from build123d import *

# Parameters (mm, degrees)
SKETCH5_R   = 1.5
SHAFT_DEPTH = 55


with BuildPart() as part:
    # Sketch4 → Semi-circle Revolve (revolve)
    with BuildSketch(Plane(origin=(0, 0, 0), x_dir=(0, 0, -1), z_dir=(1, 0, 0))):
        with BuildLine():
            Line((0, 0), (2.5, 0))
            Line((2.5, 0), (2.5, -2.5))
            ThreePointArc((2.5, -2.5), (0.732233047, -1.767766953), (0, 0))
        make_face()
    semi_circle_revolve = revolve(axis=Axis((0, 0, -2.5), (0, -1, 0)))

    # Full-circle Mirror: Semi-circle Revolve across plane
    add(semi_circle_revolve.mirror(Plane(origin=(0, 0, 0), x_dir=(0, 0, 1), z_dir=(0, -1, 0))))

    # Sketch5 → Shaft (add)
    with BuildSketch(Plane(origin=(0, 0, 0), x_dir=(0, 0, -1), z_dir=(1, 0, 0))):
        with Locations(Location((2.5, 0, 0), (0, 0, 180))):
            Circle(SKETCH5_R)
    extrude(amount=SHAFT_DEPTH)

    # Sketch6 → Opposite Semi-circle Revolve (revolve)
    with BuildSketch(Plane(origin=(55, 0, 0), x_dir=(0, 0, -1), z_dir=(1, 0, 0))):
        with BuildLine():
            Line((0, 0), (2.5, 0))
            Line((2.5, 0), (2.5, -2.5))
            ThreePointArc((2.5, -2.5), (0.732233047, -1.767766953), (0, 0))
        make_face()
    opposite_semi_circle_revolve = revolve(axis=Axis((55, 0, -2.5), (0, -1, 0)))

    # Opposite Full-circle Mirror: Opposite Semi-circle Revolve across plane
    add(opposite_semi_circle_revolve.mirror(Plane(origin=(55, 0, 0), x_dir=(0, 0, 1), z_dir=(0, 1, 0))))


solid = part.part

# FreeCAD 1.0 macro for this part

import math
import FreeCAD as App
import Part
import Sketcher

V = App.Vector
Q = App.Units.Quantity

doc = App.newDocument("Part")
body = doc.addObject("PartDesign::Body", "Body")

# Sketch on YZ plane
sketch1 = body.newObject("Sketcher::SketchObject", "Sketch")
sketch1.AttachmentSupport = (doc.getObject("YZ_Plane"), [""])
sketch1.MapMode = "FlatFace"
sketch1.addGeometry(Part.LineSegment(V(0, -2.5, 0), V(0, 0, 0)), False)
sketch1.addGeometry(Part.ArcOfCircle(Part.Circle(V(0, -2.5, 0), V(0, 0, 1), 2.5), math.radians(90), math.radians(180)), False)
sketch1.addGeometry(Part.LineSegment(V(-2.5, -2.5, 0), V(0, -2.5, 0)), False)
sketch1.addGeometry(Part.LineSegment(V(0, -2.5, 0), V(-2.5, -2.5, 0)), True)  # axis
sketch1.addConstraint(Sketcher.Constraint("Coincident", 0, 2, 1, 1))
sketch1.addConstraint(Sketcher.Constraint("Coincident", 1, 2, 2, 1))
sketch1.addConstraint(Sketcher.Constraint("Coincident", 2, 2, 0, 1))
sketch1.addConstraint(Sketcher.Constraint("Vertical", 0))
sketch1.addConstraint(Sketcher.Constraint("Horizontal", 2))
sketch1.addConstraint(Sketcher.Constraint("Horizontal", 3))
sketch1.addConstraint(Sketcher.Constraint("Coincident", 0, 2, -1, 1))
sketch1.addConstraint(Sketcher.Constraint("Coincident", 2, 2, 1, 3))
sketch1.addConstraint(Sketcher.Constraint("Coincident", 3, 1, 1, 3))
sketch1.addConstraint(Sketcher.Constraint("Equal", 2, 3))
sketch1.addConstraint(Sketcher.Constraint("Radius", 1, Q("2.5 mm")))
revolution = body.newObject("PartDesign::Revolution", "Revolution")
revolution.Profile = sketch1
revolution.ReferenceAxis = (sketch1, ["Axis0"])
revolution.Angle = 360
doc.recompute()

mirrored = body.newObject("PartDesign::Mirrored", "Mirrored")
mirrored.Originals = [revolution]
mirrored.MirrorPlane = (doc.getObject("XZ_Plane"), [""])
body.Tip = mirrored

# Sketch on YZ plane
sketch2 = body.newObject("Sketcher::SketchObject", "Sketch001")
sketch2.AttachmentSupport = (doc.getObject("YZ_Plane"), [""])
sketch2.MapMode = "FlatFace"
sketch2.addGeometry(Part.Circle(V(0, -2.5, 0), V(0, 0, 1), 1.5), False)
sketch2.addConstraint(Sketcher.Constraint("PointOnObject", 0, 3, -2))
sketch2.addConstraint(Sketcher.Constraint("Diameter", 0, Q("3 mm")))
sketch2.addConstraint(Sketcher.Constraint("DistanceY", 0, 3, -1, 1, Q("2.5 mm")))
pad1 = body.newObject("PartDesign::Pad", "Pad")
pad1.Profile = sketch2
pad1.Length = 55

# Sketch on YZ plane
sketch3 = body.newObject("Sketcher::SketchObject", "Sketch002")
sketch3.AttachmentSupport = (doc.getObject("YZ_Plane"), [""])
sketch3.MapMode = "FlatFace"
sketch3.AttachmentOffset = App.Placement(V(0, 0, 55), App.Rotation())
sketch3.addGeometry(Part.LineSegment(V(0, -2.5, 0), V(0, 0, 0)), False)
sketch3.addGeometry(Part.ArcOfCircle(Part.Circle(V(0, -2.5, 0), V(0, 0, 1), 2.5), math.radians(90), math.radians(180)), False)
sketch3.addGeometry(Part.LineSegment(V(-2.5, -2.5, 0), V(0, -2.5, 0)), False)
sketch3.addGeometry(Part.LineSegment(V(0, -2.5, 0), V(-2.5, -2.5, 0)), True)  # axis
sketch3.addConstraint(Sketcher.Constraint("Coincident", 0, 2, 1, 1))
sketch3.addConstraint(Sketcher.Constraint("Coincident", 1, 2, 2, 1))
sketch3.addConstraint(Sketcher.Constraint("Coincident", 2, 2, 0, 1))
sketch3.addConstraint(Sketcher.Constraint("Vertical", 0))
sketch3.addConstraint(Sketcher.Constraint("Horizontal", 2))
sketch3.addConstraint(Sketcher.Constraint("Horizontal", 3))
sketch3.addConstraint(Sketcher.Constraint("Coincident", 0, 2, -1, 1))
sketch3.addConstraint(Sketcher.Constraint("Coincident", 2, 2, 1, 3))
sketch3.addConstraint(Sketcher.Constraint("Coincident", 3, 1, 1, 3))
sketch3.addConstraint(Sketcher.Constraint("Equal", 2, 3))
sketch3.addConstraint(Sketcher.Constraint("Radius", 1, Q("2.5 mm")))
revolution2 = body.newObject("PartDesign::Revolution", "Revolution001")
revolution2.Profile = sketch3
revolution2.ReferenceAxis = (sketch3, ["Axis0"])
revolution2.Angle = 360
doc.recompute()

mirrored2 = body.newObject("PartDesign::Mirrored", "Mirrored001")
mirrored2.Originals = [revolution2]
mirrored2.MirrorPlane = (doc.getObject("XZ_Plane"), [""])
body.Tip = mirrored2

doc.recompute()
